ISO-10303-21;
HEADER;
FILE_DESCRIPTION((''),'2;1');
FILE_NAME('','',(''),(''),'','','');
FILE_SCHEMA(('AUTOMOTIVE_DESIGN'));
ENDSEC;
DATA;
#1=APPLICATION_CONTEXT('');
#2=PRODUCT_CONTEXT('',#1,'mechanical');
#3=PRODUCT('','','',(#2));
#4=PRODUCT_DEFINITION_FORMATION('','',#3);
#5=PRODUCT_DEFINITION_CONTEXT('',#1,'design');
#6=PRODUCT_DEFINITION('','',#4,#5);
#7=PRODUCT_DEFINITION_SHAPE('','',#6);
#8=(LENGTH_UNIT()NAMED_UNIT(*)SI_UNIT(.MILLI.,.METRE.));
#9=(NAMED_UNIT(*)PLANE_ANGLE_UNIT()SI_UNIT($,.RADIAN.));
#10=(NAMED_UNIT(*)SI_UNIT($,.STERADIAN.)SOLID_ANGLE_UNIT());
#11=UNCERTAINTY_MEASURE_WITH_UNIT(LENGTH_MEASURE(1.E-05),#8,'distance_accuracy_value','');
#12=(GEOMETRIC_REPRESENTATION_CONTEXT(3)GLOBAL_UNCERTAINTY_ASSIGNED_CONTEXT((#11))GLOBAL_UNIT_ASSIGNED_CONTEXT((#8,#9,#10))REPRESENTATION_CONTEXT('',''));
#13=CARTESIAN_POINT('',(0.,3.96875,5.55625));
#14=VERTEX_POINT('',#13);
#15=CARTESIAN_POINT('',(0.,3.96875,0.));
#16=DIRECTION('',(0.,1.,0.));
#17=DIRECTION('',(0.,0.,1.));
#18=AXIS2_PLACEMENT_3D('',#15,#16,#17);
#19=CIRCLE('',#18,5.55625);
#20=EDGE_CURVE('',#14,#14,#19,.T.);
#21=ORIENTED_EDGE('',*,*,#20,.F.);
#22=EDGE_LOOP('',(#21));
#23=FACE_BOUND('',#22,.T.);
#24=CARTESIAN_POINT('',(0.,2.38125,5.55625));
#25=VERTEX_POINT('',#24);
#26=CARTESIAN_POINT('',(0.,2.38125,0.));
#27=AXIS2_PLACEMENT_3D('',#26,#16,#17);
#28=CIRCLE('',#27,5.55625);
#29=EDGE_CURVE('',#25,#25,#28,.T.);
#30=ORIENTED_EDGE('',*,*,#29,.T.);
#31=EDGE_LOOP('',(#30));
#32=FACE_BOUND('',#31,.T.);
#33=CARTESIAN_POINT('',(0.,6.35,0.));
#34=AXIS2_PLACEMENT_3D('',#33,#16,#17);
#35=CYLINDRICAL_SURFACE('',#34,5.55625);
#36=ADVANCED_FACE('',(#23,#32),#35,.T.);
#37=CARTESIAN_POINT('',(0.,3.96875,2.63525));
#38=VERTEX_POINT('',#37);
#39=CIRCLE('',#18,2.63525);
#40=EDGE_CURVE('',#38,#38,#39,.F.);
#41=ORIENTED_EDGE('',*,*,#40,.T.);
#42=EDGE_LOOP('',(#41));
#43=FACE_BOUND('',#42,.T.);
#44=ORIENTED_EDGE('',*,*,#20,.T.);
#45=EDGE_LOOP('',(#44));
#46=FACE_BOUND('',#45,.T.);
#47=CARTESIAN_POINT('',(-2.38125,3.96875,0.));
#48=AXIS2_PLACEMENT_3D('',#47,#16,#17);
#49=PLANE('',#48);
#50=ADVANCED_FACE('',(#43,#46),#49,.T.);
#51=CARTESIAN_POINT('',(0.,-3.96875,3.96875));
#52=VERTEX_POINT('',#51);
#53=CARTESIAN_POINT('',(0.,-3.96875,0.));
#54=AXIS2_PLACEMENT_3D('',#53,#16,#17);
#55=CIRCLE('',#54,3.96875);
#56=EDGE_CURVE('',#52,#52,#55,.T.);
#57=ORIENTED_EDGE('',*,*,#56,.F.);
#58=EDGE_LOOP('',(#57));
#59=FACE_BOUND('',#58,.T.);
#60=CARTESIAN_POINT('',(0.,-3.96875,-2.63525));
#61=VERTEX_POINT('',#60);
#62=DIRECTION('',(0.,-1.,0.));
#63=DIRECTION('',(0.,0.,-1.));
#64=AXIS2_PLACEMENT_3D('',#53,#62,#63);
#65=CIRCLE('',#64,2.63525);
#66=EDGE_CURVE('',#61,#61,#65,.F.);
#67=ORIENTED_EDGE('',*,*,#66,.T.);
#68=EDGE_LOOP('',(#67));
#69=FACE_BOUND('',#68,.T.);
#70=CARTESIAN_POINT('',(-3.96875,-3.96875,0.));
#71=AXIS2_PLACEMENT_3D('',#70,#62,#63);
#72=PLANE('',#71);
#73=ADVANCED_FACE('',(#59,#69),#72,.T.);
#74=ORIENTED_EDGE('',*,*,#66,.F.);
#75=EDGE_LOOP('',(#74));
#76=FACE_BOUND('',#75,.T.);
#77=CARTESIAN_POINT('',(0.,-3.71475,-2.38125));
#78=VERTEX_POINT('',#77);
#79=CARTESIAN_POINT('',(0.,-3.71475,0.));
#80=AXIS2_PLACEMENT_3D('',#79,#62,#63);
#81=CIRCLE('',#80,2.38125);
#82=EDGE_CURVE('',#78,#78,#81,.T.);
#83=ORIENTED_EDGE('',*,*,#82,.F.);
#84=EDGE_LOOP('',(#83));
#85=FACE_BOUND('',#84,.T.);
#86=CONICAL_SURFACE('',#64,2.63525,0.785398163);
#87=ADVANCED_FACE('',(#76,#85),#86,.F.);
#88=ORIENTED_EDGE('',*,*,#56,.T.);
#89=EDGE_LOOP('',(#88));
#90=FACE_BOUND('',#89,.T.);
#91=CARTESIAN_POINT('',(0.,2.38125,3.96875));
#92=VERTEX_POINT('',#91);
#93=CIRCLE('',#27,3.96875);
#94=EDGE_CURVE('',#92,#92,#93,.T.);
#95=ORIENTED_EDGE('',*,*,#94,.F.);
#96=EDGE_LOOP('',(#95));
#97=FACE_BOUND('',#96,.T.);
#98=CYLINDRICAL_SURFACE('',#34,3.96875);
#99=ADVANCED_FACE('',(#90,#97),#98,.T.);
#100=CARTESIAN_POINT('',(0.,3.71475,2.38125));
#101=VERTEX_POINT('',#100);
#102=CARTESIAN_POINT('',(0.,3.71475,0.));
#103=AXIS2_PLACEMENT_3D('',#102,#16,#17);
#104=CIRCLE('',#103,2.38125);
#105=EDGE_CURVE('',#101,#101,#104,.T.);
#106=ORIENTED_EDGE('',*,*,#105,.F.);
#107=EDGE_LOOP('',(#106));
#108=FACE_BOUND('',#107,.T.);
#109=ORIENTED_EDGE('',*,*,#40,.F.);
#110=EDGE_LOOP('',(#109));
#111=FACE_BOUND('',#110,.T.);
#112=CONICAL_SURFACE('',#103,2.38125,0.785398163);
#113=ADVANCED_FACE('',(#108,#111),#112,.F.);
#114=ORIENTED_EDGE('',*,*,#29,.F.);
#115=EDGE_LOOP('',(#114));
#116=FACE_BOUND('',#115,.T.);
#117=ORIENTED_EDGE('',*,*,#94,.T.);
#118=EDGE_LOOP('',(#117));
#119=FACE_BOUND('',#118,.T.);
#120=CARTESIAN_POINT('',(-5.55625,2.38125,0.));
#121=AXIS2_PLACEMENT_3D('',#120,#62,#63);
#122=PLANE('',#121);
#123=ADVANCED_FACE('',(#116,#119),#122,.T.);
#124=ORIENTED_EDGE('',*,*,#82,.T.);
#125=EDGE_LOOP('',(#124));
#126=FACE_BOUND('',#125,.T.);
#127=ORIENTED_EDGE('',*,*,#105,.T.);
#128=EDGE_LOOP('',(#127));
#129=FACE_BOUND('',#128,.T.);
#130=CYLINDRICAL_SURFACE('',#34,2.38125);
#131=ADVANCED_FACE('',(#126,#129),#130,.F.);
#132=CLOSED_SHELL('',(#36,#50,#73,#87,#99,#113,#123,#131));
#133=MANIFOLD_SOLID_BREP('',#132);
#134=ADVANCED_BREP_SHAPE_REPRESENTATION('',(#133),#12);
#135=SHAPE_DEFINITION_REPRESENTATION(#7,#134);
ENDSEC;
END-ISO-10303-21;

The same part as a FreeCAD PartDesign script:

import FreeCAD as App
import Part
import Sketcher

V = App.Vector
Q = App.Units.Quantity


def edges_at(feature, points):
    """Names of the edges that pass closest to the given points."""
    edges = feature.Shape.Edges
    near = lambda p: min(range(len(edges)), key=lambda i: edges[i].distToShape(Part.Vertex(*p))[0])
    return sorted({f"Edge{near(p) + 1}" for p in points})

doc = App.newDocument("Part")
body = doc.addObject("PartDesign::Body", "Body")

# Sketch on XY plane
sketch1 = body.newObject("Sketcher::SketchObject", "Sketch")
sketch1.AttachmentSupport = (doc.getObject("XY_Plane"), [""])
sketch1.MapMode = "FlatFace"
sketch1.addGeometry(Part.LineSegment(V(-2.38125, 3.96875, 0), V(-5.55625, 3.96875, 0)), False)
sketch1.addGeometry(Part.LineSegment(V(-5.55625, 3.96875, 0), V(-5.55625, 2.38125, 0)), False)
sketch1.addGeometry(Part.LineSegment(V(-5.55625, 2.38125, 0), V(-3.96875, 2.38125, 0)), False)
sketch1.addGeometry(Part.LineSegment(V(-3.96875, 2.38125, 0), V(-3.96875, -3.96875, 0)), False)
sketch1.addGeometry(Part.LineSegment(V(-3.96875, -3.96875, 0), V(-2.38125, -3.96875, 0)), False)
sketch1.addGeometry(Part.LineSegment(V(-2.38125, -3.96875, 0), V(-2.38125, 3.96875, 0)), False)
sketch1.addConstraint(Sketcher.Constraint("Coincident", 0, 2, 1, 1))
sketch1.addConstraint(Sketcher.Constraint("Coincident", 1, 2, 2, 1))
sketch1.addConstraint(Sketcher.Constraint("Coincident", 2, 2, 3, 1))
sketch1.addConstraint(Sketcher.Constraint("Coincident", 3, 2, 4, 1))
sketch1.addConstraint(Sketcher.Constraint("Coincident", 4, 2, 5, 1))
sketch1.addConstraint(Sketcher.Constraint("Coincident", 5, 2, 0, 1))
sketch1.addConstraint(Sketcher.Constraint("Horizontal", 0))
sketch1.addConstraint(Sketcher.Constraint("Vertical", 1))
sketch1.addConstraint(Sketcher.Constraint("Horizontal", 2))
sketch1.addConstraint(Sketcher.Constraint("Vertical", 3))
sketch1.addConstraint(Sketcher.Constraint("Horizontal", 4))
sketch1.addConstraint(Sketcher.Constraint("Vertical", 5))
sketch1.addConstraint(Sketcher.Constraint("Equal", 2, 4))
sketch1.addConstraint(Sketcher.Constraint("Equal", 4, 1))
sketch1.addConstraint(Sketcher.Constraint("DistanceY", 3, 2, 3, 1, Q("0.25 in")))
sketch1.addConstraint(Sketcher.Constraint("DistanceX", 0, 2, 0, 1, Q("0.125 in")))
sketch1.addConstraint(Sketcher.Constraint("DistanceX", 0, 2, -1, 1, Q("0.21875 in")))
sketch1.addConstraint(Sketcher.Constraint("DistanceY", -1, 1, 0, 2, Q("0.15625 in")))
revolution = body.newObject("PartDesign::Revolution", "Revolution")
revolution.Profile = sketch1
revolution.ReferenceAxis = (sketch1, ["V_Axis"])
revolution.Angle = 360
doc.recompute()

chamfer = body.newObject("PartDesign::Chamfer", "Chamfer")
chamfer.Base = (revolution, edges_at(revolution, [(0, -3.969, -2.381), (0, 3.969, -2.381)]))
chamfer.Size = Q("0.01 in")

doc.recompute()
